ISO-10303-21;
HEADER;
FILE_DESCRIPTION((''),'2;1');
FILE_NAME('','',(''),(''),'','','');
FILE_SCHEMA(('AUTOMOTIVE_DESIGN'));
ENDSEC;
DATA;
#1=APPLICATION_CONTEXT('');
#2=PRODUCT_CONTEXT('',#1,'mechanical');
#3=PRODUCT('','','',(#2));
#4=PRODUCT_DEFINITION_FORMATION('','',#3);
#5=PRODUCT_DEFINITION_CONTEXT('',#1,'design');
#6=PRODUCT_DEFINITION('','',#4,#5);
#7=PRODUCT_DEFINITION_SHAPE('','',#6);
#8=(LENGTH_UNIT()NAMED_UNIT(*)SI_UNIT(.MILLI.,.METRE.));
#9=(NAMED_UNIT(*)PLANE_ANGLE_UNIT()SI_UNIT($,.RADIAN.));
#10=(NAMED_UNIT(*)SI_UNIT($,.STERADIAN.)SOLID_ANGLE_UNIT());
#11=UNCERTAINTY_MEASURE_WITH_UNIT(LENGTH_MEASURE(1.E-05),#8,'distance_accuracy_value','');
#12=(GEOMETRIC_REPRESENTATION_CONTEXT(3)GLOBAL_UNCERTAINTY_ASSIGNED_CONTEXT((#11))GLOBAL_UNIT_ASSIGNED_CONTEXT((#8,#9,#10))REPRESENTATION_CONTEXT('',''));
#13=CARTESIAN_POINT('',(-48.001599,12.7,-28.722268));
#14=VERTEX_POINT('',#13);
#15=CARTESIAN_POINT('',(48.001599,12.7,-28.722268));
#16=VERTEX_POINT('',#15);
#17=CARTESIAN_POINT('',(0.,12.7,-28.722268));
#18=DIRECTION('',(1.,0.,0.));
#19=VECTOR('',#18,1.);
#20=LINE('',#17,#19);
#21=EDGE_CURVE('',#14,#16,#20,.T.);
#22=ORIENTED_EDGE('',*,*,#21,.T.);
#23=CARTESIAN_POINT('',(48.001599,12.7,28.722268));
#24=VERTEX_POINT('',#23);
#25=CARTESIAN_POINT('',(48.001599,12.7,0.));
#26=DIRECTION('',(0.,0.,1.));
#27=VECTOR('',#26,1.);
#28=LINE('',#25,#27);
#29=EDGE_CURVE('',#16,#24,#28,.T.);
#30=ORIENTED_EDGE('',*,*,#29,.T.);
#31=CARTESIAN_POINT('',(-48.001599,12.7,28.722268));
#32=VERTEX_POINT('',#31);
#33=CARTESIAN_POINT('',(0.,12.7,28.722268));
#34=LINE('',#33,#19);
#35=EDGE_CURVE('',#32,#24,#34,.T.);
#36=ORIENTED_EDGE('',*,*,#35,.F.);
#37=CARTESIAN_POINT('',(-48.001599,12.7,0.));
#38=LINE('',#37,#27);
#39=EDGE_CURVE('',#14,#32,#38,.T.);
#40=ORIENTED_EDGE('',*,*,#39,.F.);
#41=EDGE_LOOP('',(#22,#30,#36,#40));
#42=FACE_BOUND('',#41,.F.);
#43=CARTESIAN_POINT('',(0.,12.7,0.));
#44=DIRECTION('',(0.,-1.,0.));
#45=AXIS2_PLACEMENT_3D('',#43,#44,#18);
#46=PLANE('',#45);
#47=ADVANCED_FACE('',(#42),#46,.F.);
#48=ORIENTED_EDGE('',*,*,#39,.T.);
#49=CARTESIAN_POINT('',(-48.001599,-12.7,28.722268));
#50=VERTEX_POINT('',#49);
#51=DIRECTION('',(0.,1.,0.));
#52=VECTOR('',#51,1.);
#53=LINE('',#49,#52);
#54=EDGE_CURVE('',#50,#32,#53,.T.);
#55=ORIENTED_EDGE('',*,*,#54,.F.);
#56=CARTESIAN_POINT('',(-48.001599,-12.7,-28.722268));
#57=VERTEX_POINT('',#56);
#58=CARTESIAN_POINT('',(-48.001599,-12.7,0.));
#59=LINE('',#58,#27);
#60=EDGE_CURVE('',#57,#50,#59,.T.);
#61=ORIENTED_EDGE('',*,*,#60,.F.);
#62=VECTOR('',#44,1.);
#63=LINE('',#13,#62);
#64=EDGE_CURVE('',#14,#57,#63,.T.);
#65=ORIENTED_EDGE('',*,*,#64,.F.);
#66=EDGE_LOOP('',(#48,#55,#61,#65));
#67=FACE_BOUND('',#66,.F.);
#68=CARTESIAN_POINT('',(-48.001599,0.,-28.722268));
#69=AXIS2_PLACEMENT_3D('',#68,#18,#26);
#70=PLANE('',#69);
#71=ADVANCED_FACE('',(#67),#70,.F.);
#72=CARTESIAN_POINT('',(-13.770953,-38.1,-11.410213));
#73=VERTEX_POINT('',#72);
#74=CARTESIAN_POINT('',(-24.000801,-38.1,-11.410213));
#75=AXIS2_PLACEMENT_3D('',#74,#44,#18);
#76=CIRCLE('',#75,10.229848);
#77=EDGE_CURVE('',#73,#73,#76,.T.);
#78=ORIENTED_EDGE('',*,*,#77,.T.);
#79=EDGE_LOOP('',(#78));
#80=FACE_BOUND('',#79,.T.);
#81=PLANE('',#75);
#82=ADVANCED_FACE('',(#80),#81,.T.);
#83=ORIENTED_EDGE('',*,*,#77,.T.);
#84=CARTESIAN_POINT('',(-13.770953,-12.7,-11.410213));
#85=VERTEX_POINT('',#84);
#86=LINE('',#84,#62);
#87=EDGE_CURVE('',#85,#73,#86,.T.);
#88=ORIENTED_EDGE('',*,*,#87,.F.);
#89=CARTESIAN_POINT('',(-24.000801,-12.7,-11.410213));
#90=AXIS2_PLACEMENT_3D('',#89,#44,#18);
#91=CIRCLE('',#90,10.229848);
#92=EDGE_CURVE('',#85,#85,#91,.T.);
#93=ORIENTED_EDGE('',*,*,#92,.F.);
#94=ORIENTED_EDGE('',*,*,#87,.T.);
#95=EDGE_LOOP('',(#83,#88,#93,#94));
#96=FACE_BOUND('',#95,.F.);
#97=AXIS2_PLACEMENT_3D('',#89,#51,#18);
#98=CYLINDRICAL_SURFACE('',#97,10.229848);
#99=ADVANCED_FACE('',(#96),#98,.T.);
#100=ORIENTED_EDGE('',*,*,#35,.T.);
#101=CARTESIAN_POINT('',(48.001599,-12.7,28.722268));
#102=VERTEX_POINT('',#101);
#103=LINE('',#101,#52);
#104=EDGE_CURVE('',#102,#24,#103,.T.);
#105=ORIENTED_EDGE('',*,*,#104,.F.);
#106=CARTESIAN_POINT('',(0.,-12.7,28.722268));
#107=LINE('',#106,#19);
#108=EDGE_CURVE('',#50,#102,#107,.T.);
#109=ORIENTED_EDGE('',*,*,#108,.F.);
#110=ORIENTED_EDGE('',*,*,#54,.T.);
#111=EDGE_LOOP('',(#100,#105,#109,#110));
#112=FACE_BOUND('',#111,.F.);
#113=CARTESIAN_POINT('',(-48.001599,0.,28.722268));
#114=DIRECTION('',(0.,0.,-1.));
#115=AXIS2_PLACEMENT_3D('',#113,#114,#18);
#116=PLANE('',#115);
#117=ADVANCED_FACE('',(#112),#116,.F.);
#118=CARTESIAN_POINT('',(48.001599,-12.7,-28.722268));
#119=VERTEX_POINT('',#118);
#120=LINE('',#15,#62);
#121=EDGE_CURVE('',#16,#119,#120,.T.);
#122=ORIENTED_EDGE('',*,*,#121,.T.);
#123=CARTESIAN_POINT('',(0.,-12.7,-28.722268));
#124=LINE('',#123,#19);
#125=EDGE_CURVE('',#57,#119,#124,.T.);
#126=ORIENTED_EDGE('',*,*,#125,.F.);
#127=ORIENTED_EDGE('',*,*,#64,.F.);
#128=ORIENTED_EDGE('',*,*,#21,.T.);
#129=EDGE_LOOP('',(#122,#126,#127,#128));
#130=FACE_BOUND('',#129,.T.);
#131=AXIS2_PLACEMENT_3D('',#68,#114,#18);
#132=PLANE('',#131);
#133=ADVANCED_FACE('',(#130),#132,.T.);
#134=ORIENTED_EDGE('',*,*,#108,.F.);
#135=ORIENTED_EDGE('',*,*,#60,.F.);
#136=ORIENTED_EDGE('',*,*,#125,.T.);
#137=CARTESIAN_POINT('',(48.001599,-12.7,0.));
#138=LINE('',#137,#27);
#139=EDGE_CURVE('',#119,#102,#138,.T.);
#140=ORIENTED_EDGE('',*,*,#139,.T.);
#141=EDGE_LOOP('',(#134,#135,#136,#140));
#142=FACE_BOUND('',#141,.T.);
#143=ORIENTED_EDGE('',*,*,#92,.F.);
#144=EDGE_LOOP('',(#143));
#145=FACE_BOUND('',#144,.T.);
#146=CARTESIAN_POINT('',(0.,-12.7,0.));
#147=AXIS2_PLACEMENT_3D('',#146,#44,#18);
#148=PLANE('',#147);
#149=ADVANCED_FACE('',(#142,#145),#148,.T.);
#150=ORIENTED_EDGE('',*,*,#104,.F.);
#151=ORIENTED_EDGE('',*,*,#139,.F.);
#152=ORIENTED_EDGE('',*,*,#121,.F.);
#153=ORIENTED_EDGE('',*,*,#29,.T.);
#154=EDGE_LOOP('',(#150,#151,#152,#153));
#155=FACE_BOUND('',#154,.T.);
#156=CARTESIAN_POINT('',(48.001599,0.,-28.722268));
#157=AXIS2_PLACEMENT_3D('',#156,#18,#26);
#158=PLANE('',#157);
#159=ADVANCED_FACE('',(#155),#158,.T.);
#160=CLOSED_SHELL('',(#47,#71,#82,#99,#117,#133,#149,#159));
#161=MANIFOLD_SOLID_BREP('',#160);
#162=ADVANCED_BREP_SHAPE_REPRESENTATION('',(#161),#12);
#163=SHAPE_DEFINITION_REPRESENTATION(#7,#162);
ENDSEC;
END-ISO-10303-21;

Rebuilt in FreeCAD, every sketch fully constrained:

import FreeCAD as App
import Part
import Sketcher
Q = App.Units.Quantity

doc = App.newDocument("Part")
params = doc.addObject("Spreadsheet::Sheet", "Params")
for row, (alias, value) in enumerate([
    ("pad1_length", "1 in"),
    ("pad2_length", "1 in"),
], start=1):
    params.set(f"A{row}", alias)
    params.set(f"B{row}", "=" + value)
    params.setAlias(f"B{row}", alias)

body = doc.addObject("PartDesign::Body", "Body")

sketch1 = doc.addObject("Sketcher::SketchObject", "Sketch")
body.addObject(sketch1)
sketch1.AttachmentSupport = (doc.XZ_Plane, [""])
sketch1.MapMode = "FlatFace"
sketch1.addGeometry(Part.LineSegment(App.Vector(-48.001599, 28.722268, 0), App.Vector(-48.001599, -28.722268, 0)), False)
sketch1.addGeometry(Part.LineSegment(App.Vector(-48.001599, -28.722268, 0), App.Vector(48.001599, -28.722268, 0)), False)
sketch1.addGeometry(Part.LineSegment(App.Vector(48.001599, -28.722268, 0), App.Vector(48.001599, 28.722268, 0)), False)
sketch1.addGeometry(Part.LineSegment(App.Vector(48.001599, 28.722268, 0), App.Vector(-48.001599, 28.722268, 0)), False)
sketch1.addConstraint(Sketcher.Constraint("Coincident", 0, 2, 1, 1))
sketch1.addConstraint(Sketcher.Constraint("Coincident", 1, 2, 2, 1))
sketch1.addConstraint(Sketcher.Constraint("Coincident", 2, 2, 3, 1))
sketch1.addConstraint(Sketcher.Constraint("Coincident", 3, 2, 0, 1))
sketch1.addConstraint(Sketcher.Constraint("Vertical", 0))
sketch1.addConstraint(Sketcher.Constraint("Horizontal", 1))
sketch1.addConstraint(Sketcher.Constraint("Vertical", 2))
sketch1.addConstraint(Sketcher.Constraint("Horizontal", 3))
sketch1.addConstraint(Sketcher.Constraint("Symmetric", 0, 2, 2, 2, -1, 1))
sketch1.addConstraint(Sketcher.Constraint("DistanceX", 0, 2, -1, 1, Q("48.001599 mm")))
sketch1.addConstraint(Sketcher.Constraint("DistanceY", 0, 2, 0, 1, Q("57.444536 mm")))
pad1 = doc.addObject("PartDesign::Pad", "Pad")
body.addObject(pad1)
pad1.Profile = sketch1
pad1.setExpression("Length", "Params.pad1_length")
pad1.Midplane = True

sketch2 = doc.addObject("Sketcher::SketchObject", "Sketch001")
body.addObject(sketch2)
sketch2.AttachmentSupport = (doc.XZ_Plane, [""])
sketch2.MapMode = "FlatFace"
sketch2.AttachmentOffset = App.Placement(App.Vector(0, 0, 0.5 * 25.4), App.Rotation())
sketch2.addGeometry(Part.Circle(App.Vector(-24.000801, -11.410213, 0), App.Vector(0, 0, 1), 10.229848), False)
sketch2.addConstraint(Sketcher.Constraint("Diameter", 0, Q("0.8054998 in")))
sketch2.addConstraint(Sketcher.Constraint("DistanceX", 0, 3, -1, 1, Q("24.000801 mm")))
sketch2.addConstraint(Sketcher.Constraint("DistanceY", 0, 3, -1, 1, Q("11.410213 mm")))
pad2 = doc.addObject("PartDesign::Pad", "Pad001")
body.addObject(pad2)
pad2.Profile = sketch2
pad2.setExpression("Length", "Params.pad2_length")

doc.recompute()
